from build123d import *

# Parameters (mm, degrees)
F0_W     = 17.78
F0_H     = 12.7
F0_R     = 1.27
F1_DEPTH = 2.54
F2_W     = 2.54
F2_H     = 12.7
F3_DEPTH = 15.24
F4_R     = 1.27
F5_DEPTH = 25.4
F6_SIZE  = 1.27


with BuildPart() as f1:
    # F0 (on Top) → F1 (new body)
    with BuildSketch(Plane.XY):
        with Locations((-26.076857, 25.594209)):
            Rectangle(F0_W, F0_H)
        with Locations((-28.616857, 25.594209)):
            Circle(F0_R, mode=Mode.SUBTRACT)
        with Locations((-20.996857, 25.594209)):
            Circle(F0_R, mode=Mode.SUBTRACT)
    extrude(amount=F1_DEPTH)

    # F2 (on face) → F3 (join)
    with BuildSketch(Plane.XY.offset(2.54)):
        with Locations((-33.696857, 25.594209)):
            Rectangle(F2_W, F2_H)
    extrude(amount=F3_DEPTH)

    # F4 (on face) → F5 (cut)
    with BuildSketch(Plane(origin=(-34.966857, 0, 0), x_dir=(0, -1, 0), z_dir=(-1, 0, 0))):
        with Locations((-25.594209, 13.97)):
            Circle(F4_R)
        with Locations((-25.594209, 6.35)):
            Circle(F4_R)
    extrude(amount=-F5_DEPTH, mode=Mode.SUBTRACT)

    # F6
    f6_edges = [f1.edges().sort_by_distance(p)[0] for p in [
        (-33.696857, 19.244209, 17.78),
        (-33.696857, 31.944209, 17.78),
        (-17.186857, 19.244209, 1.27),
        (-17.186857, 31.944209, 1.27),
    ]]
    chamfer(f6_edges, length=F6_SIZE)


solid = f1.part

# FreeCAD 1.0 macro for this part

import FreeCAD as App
import Part
import Sketcher

V = App.Vector
Q = App.Units.Quantity


def edges_at(feature, points):
    """Names of the edges that pass closest to the given points."""
    edges = feature.Shape.Edges
    near = lambda p: min(range(len(edges)), key=lambda i: edges[i].distToShape(Part.Vertex(*p))[0])
    return sorted({f"Edge{near(p) + 1}" for p in points})

doc = App.newDocument("Part")
body = doc.addObject("PartDesign::Body", "Body")

sketch1 = doc.addObject("Sketcher::SketchObject", "Sketch")
body.addObject(sketch1)
sketch1.AttachmentSupport = (doc.XY_Plane, [""])
sketch1.MapMode = "FlatFace"
sketch1.addGeometry([
    Part.LineSegment(V(-34.966857, 31.944209, 0), V(-34.966857, 19.244209, 0)),
    Part.LineSegment(V(-34.966857, 19.244209, 0), V(-17.186857, 19.244209, 0)),
    Part.LineSegment(V(-17.186857, 19.244209, 0), V(-17.186857, 31.944209, 0)),
    Part.LineSegment(V(-17.186857, 31.944209, 0), V(-34.966857, 31.944209, 0)),
    Part.Circle(V(-28.616857, 25.594209, 0), V(0, 0, 1), 1.27),
    Part.Circle(V(-20.996857, 25.594209, 0), V(0, 0, 1), 1.27),
], False)
sketch1.addConstraint([
    Sketcher.Constraint("Coincident", 0, 2, 1, 1),
    Sketcher.Constraint("Coincident", 1, 2, 2, 1),
    Sketcher.Constraint("Coincident", 2, 2, 3, 1),
    Sketcher.Constraint("Coincident", 3, 2, 0, 1),
    Sketcher.Constraint("Vertical", 0),
    Sketcher.Constraint("Horizontal", 1),
    Sketcher.Constraint("Vertical", 2),
    Sketcher.Constraint("Horizontal", 3),
    Sketcher.Constraint("Equal", 4, 5),
    Sketcher.Constraint("Horizontal", 4, 3, 5, 3),
    Sketcher.Constraint("Diameter", 4, Q("0.1 in")),
    Sketcher.Constraint("DistanceX", 1, 1, 1, 2, Q("0.7 in")),
    Sketcher.Constraint("DistanceY", 0, 2, 0, 1, Q("0.5 in")),
    Sketcher.Constraint("DistanceX", 4, 3, 5, 3, Q("0.3 in")),
    Sketcher.Constraint("DistanceX", 0, 2, 4, 3, Q("0.25 in")),
    Sketcher.Constraint("DistanceY", 0, 2, 4, 3, Q("0.25 in")),
    Sketcher.Constraint("DistanceY", -1, 1, 4, 3, Q("25.594209 mm")),
    Sketcher.Constraint("DistanceX", 4, 3, -1, 1, Q("28.616857 mm")),
])
pad1 = doc.addObject("PartDesign::Pad", "Pad")
body.addObject(pad1)
pad1.Profile = sketch1
pad1.Length = Q("0.1 in")

sketch2 = doc.addObject("Sketcher::SketchObject", "Sketch001")
body.addObject(sketch2)
sketch2.AttachmentSupport = (doc.XY_Plane, [""])
sketch2.MapMode = "FlatFace"
sketch2.AttachmentOffset = App.Placement(V(0, 0, 0.1 * 25.4), App.Rotation())
sketch2.addGeometry([
    Part.LineSegment(V(-34.966857, 31.944209, 0), V(-34.966857, 19.244209, 0)),
    Part.LineSegment(V(-34.966857, 19.244209, 0), V(-32.426857, 19.244209, 0)),
    Part.LineSegment(V(-32.426857, 19.244209, 0), V(-32.426857, 31.944209, 0)),
    Part.LineSegment(V(-32.426857, 31.944209, 0), V(-34.966857, 31.944209, 0)),
], False)
sketch2.addConstraint([
    Sketcher.Constraint("Coincident", 0, 2, 1, 1),
    Sketcher.Constraint("Coincident", 1, 2, 2, 1),
    Sketcher.Constraint("Coincident", 2, 2, 3, 1),
    Sketcher.Constraint("Coincident", 3, 2, 0, 1),
    Sketcher.Constraint("Vertical", 0),
    Sketcher.Constraint("Horizontal", 1),
    Sketcher.Constraint("Vertical", 2),
    Sketcher.Constraint("Horizontal", 3),
    Sketcher.Constraint("DistanceX", 1, 1, 1, 2, Q("0.1 in")),
    Sketcher.Constraint("DistanceY", 0, 2, 0, 1, Q("0.5 in")),
    Sketcher.Constraint("DistanceY", -1, 1, 0, 2, Q("19.244209 mm")),
    Sketcher.Constraint("DistanceX", 0, 2, -1, 1, Q("34.966857 mm")),
])
pad2 = doc.addObject("PartDesign::Pad", "Pad001")
body.addObject(pad2)
pad2.Profile = sketch2
pad2.Length = Q("0.6 in")

sketch3 = doc.addObject("Sketcher::SketchObject", "Sketch002")
body.addObject(sketch3)
sketch3.AttachmentSupport = (doc.YZ_Plane, [""])
sketch3.MapMode = "FlatFace"
sketch3.AttachmentOffset = App.Placement(V(0, 0, -34.966857), App.Rotation())
sketch3.addGeometry([
    Part.Circle(V(25.594209, 13.97, 0), V(0, 0, 1), 1.27),
    Part.Circle(V(25.594209, 6.35, 0), V(0, 0, 1), 1.27),
], False)
sketch3.addConstraint([
    Sketcher.Constraint("Equal", 0, 1),
    Sketcher.Constraint("Vertical", 0, 3, 1, 3),
    Sketcher.Constraint("Diameter", 0, Q("0.1 in")),
    Sketcher.Constraint("DistanceY", 1, 3, 0, 3, Q("0.3 in")),
    Sketcher.Constraint("DistanceY", -1, 1, 0, 3, Q("0.55 in")),
    Sketcher.Constraint("DistanceX", -1, 1, 0, 3, Q("25.594209 mm")),
])
pocket1 = doc.addObject("PartDesign::Pocket", "Pocket")
body.addObject(pocket1)
pocket1.Profile = sketch3
pocket1.Length = Q("1 in")
pocket1.Reversed = True
doc.recompute()

chamfer = doc.addObject("PartDesign::Chamfer", "Chamfer")
body.addObject(chamfer)
chamfer.Base = (pocket1, edges_at(pocket1, [
    (-33.697, 19.244, 17.78),
    (-33.697, 31.944, 17.78),
    (-17.187, 19.244, 1.27),
    (-17.187, 31.944, 1.27),
]))
chamfer.Size = Q("0.05 in")

doc.recompute()
